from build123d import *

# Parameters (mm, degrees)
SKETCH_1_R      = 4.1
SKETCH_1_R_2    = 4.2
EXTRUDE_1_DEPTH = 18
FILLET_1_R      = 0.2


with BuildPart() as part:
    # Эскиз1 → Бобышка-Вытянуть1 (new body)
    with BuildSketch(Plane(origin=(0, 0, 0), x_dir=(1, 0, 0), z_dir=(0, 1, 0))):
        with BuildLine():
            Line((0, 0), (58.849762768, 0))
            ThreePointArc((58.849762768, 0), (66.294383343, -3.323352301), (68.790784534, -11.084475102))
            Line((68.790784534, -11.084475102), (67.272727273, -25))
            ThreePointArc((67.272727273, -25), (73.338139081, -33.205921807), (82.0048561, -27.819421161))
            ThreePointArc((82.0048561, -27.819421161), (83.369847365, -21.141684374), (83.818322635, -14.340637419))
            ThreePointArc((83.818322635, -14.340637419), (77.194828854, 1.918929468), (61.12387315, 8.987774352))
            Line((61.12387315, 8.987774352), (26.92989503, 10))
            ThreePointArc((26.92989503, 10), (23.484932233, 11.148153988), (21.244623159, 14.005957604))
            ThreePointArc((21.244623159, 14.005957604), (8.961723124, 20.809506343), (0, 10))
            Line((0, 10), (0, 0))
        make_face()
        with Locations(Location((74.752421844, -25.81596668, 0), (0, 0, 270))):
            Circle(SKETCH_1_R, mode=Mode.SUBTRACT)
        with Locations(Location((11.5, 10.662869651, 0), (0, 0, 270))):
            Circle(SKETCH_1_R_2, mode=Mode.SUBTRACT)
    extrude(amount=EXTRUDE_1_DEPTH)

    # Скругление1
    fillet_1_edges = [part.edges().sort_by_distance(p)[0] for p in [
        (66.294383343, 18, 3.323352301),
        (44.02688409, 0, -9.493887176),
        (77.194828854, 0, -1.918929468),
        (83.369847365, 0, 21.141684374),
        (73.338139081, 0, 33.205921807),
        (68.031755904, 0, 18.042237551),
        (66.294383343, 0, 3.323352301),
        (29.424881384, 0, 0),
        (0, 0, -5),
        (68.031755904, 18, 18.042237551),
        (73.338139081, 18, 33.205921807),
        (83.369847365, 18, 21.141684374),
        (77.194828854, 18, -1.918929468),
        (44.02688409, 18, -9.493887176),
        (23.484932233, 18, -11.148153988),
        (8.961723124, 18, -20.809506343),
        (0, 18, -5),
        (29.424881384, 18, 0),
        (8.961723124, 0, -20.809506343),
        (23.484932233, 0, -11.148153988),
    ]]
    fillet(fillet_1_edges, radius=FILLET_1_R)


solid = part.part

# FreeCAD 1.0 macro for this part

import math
import FreeCAD as App
import Part
import Sketcher
from FreeCAD import Vector
Q = App.Units.Quantity


def edges_at(feature, points):
    """Names of the edges that pass closest to the given points."""
    edges = feature.Shape.Edges
    near = lambda p: min(range(len(edges)), key=lambda i: edges[i].distToShape(Part.Vertex(*p))[0])
    return sorted({f"Edge{near(p) + 1}" for p in points})

doc = App.newDocument("Part")
body = doc.addObject("PartDesign::Body", "Body")

# Sketch on XZ plane
sketch1 = doc.addObject("Sketcher::SketchObject", "Sketch")
body.addObject(sketch1)
sketch1.AttachmentSupport = (doc.XZ_Plane, [""])
sketch1.MapMode = "FlatFace"
sketch1.addGeometry(Part.LineSegment(Vector(0, 0, 0), Vector(58.8, 0, 0)), False)
sketch1.addGeometry(Part.ArcOfCircle(Part.Circle(Vector(58.8, 10, 0), Vector(0, 0, 1), 10), math.radians(-90), math.radians(6)), False)
sketch1.addGeometry(Part.LineSegment(Vector(68.8, 11.1, 0), Vector(67.3, 25, 0)), False)
sketch1.addGeometry(Part.ArcOfCircle(Part.Circle(Vector(74.8, 25.8, 0), Vector(0, 0, 1), 7.5), math.radians(15), math.radians(186)), False)
sketch1.addGeometry(Part.ArcOfCircle(Part.Circle(Vector(33.6, 14.4, 0), Vector(0, 0, 1), 50.2), math.radians(-0.12), math.radians(15.44)), False)
sketch1.addGeometry(Part.ArcOfCircle(Part.Circle(Vector(60.4, 14.4, 0), Vector(0, 0, 1), 23.4), math.radians(-88), math.radians(0)), False)
sketch1.addGeometry(Part.LineSegment(Vector(61.1, -9, 0), Vector(26.9, -10, 0)), False)
sketch1.addGeometry(Part.ArcOfCircle(Part.Circle(Vector(27.1, -16.3, 0), Vector(0, 0, 1), 6.3), math.radians(92), math.radians(159)), False)
sketch1.addGeometry(Part.ArcOfCircle(Part.Circle(Vector(11, -10, 0), Vector(0, 0, 1), 11), math.radians(180), math.radians(339)), False)
sketch1.addGeometry(Part.LineSegment(Vector(0, -10, 0), Vector(0, 0, 0)), False)
sketch1.addGeometry(Part.Circle(Vector(74.8, 25.8, 0), Vector(0, 0, 1), 4.1), False)
sketch1.addGeometry(Part.Circle(Vector(11.5, -10.7, 0), Vector(0, 0, 1), 4.2), False)
sketch1.addConstraint(Sketcher.Constraint("Tangent", 0, 2, 1, 1))
sketch1.addConstraint(Sketcher.Constraint("Tangent", 1, 2, 2, 1))
sketch1.addConstraint(Sketcher.Constraint("Tangent", 2, 2, 3, 2))
sketch1.addConstraint(Sketcher.Constraint("Tangent", 3, 1, 4, 2))
sketch1.addConstraint(Sketcher.Constraint("Tangent", 4, 1, 5, 2))
sketch1.addConstraint(Sketcher.Constraint("Tangent", 5, 1, 6, 1))
sketch1.addConstraint(Sketcher.Constraint("Tangent", 6, 2, 7, 1))
sketch1.addConstraint(Sketcher.Constraint("Tangent", 7, 2, 8, 2))
sketch1.addConstraint(Sketcher.Constraint("Tangent", 8, 1, 9, 1))
sketch1.addConstraint(Sketcher.Constraint("Coincident", 9, 2, 0, 1))
sketch1.addConstraint(Sketcher.Constraint("Horizontal", 0))
sketch1.addConstraint(Sketcher.Constraint("Vertical", 9))
sketch1.addConstraint(Sketcher.Constraint("Coincident", 9, 2, -1, 1))
sketch1.addConstraint(Sketcher.Constraint("Coincident", 10, 3, 3, 3))
sketch1.addConstraint(Sketcher.Constraint("Horizontal", 8, 3, 6, 2))
sketch1.addConstraint(Sketcher.Constraint("Radius", 1, Q("10 mm")))
sketch1.addConstraint(Sketcher.Constraint("Radius", 8, Q("11 mm")))
sketch1.addConstraint(Sketcher.Constraint("Diameter", 10, Q("8.2 mm")))
sketch1.addConstraint(Sketcher.Constraint("Diameter", 11, Q("8.4 mm")))
sketch1.addConstraint(Sketcher.Constraint("DistanceY", 9, 1, 9, 2, Q("10 mm")))
sketch1.addConstraint(Sketcher.Constraint("DistanceY", -1, 1, 2, 2, Q("25 mm")))
sketch1.addConstraint(Sketcher.Constraint("DistanceX", -1, 1, 11, 3, Q("11.5 mm")))
sketch1.addConstraint(Sketcher.Constraint("Radius", 3, Q("7.52407 mm")))
sketch1.addConstraint(Sketcher.Constraint("Radius", 7, Q("6.30478 mm")))
sketch1.addConstraint(Sketcher.Constraint("Radius", 4, Q("50.234294 mm")))
sketch1.addConstraint(Sketcher.Constraint("Radius", 5, Q("23.386493 mm")))
sketch1.addConstraint(Sketcher.Constraint("DistanceY", -1, 1, 4, 3, Q("14.4434 mm")))
sketch1.addConstraint(Sketcher.Constraint("DistanceY", 7, 3, 5, 3, Q("30.690498 mm")))
sketch1.addConstraint(Sketcher.Constraint("DistanceX", 10, 3, 4, 1, Q("9.065901 mm")))
sketch1.addConstraint(Sketcher.Constraint("DistanceX", 0, 1, 0, 2, Q("58.849763 mm")))
sketch1.addConstraint(Sketcher.Constraint("DistanceY", 11, 3, -1, 1, Q("10.66287 mm")))
pad1 = doc.addObject("PartDesign::Pad", "Pad")
body.addObject(pad1)
pad1.Profile = sketch1
pad1.Length = 18
pad1.Reversed = True
doc.recompute()

fillet = doc.addObject("PartDesign::Fillet", "Fillet")
body.addObject(fillet)
fillet.Base = (pad1, edges_at(pad1, [
    (66.294, 18, 3.323),
    (44.027, 0, -9.494),
    (77.195, 0, -1.919),
    (83.37, 0, 21.142),
    (73.338, 0, 33.206),
    (68.032, 0, 18.042),
    (66.294, 0, 3.323),
    (29.425, 0, 0),
    (0, 0, -5),
    (68.032, 18, 18.042),
    (73.338, 18, 33.206),
    (83.37, 18, 21.142),
    (77.195, 18, -1.919),
    (44.027, 18, -9.494),
    (23.485, 18, -11.148),
    (8.962, 18, -20.81),
    (0, 18, -5),
    (29.425, 18, 0),
    (8.962, 0, -20.81),
    (23.485, 0, -11.148),
]))
fillet.Radius = 0.2

doc.recompute()
